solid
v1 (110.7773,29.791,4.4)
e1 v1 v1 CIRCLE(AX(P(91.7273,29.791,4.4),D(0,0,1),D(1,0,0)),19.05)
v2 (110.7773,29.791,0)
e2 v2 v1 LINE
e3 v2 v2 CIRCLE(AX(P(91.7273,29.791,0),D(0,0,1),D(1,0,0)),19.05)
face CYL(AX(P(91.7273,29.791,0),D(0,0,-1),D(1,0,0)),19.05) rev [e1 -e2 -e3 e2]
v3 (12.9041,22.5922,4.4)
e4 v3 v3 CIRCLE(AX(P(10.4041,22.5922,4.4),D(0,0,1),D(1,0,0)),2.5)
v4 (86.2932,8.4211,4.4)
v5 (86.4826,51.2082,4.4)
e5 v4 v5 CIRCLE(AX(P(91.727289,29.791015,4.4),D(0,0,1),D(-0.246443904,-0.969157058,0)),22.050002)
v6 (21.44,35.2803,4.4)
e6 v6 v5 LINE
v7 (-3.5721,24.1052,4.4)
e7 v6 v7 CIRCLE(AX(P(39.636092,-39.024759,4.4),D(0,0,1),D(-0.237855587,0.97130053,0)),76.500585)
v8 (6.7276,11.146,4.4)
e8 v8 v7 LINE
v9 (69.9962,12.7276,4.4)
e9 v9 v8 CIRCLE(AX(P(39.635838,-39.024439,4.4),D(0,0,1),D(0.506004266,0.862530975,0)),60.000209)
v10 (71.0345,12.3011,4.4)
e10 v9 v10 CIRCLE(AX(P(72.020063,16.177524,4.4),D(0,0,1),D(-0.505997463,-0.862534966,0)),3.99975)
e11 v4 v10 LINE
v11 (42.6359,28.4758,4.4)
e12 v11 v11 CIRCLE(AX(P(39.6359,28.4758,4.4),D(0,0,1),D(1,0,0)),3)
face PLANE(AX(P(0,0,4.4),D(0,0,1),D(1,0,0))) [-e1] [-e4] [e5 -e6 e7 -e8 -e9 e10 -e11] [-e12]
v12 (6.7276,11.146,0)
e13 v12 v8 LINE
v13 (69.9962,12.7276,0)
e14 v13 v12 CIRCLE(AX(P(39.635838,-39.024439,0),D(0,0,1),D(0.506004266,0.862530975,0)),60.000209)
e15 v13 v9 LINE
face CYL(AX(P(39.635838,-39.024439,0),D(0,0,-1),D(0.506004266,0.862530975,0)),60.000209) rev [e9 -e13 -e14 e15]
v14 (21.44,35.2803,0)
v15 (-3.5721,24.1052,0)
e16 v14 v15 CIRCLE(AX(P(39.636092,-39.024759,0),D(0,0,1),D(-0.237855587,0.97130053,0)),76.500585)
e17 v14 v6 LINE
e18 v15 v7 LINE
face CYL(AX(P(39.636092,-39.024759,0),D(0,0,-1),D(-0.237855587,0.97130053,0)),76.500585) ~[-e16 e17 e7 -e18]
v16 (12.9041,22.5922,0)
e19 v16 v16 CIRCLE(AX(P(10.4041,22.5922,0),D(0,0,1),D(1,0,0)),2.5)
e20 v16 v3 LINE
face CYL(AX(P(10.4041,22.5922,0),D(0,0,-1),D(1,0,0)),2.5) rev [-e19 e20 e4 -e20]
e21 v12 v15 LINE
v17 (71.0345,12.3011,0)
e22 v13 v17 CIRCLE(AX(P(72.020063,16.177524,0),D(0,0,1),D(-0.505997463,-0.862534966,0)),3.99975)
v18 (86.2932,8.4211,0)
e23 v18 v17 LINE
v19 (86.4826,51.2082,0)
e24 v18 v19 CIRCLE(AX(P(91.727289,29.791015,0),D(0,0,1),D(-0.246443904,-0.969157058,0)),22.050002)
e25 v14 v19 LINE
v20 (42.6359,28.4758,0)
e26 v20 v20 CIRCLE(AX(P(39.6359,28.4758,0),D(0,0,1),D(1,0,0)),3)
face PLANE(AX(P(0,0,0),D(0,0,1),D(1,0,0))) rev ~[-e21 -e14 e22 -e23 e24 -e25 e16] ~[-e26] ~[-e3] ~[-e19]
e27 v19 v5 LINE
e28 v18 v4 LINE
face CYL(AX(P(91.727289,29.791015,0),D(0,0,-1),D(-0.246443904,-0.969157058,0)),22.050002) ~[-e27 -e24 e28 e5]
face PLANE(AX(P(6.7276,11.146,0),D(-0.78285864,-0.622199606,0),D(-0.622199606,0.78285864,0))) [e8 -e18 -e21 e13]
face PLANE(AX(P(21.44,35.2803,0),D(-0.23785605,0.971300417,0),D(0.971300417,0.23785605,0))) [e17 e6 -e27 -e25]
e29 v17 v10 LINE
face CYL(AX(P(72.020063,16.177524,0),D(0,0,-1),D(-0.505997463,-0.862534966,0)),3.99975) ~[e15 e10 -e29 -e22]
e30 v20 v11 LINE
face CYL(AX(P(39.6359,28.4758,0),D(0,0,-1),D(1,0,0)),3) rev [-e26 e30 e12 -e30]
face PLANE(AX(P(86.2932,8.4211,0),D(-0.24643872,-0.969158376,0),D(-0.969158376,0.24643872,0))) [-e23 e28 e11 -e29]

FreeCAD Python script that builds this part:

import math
import FreeCAD as App
import Part
import Sketcher
Q = App.Units.Quantity

doc = App.newDocument("Part")
params = doc.addObject("Spreadsheet::Sheet", "Params")
for row, (alias, value) in enumerate([
    ("sketch1_diameter", "5 mm"),
    ("sketch1_diameter2", "6 mm"),
    ("sketch1_radius", "60 mm"),
    ("sketch1_radius2", "4 mm"),
    ("sketch1_diameter3", "38.1 mm"),
    ("pad1_length", "4.4 mm"),
], start=1):
    params.set(f"A{row}", alias)
    params.set(f"B{row}", "=" + value)
    params.setAlias(f"B{row}", alias)

body = doc.addObject("PartDesign::Body", "Body")

# Sketch on XY plane
sketch1 = doc.addObject("Sketcher::SketchObject", "Sketch")
body.addObject(sketch1)
sketch1.AttachmentSupport = (doc.XY_Plane, [""])
sketch1.MapMode = "FlatFace"
sketch1.addGeometry([
    Part.ArcOfCircle(Part.Circle(App.Vector(39.6, -39, 0), App.Vector(0, 0, 1), 60), math.radians(60), math.radians(123)),  # 0
    Part.ArcOfCircle(Part.Circle(App.Vector(72, 16.2, 0), App.Vector(0, 0, 1), 4), math.radians(-120.4), math.radians(-104.27)),  # 1
    Part.LineSegment(App.Vector(71, 12.3, 0), App.Vector(86.3, 8.4, 0)),  # 2
    Part.ArcOfCircle(Part.Circle(App.Vector(91.7, 29.8, 0), App.Vector(0, 0, 1), 22), math.radians(-104), math.radians(104)),  # 3
    Part.LineSegment(App.Vector(86.5, 51.2, 0), App.Vector(21.4, 35.3, 0)),  # 4
    Part.ArcOfCircle(Part.Circle(App.Vector(39.6, -39, 0), App.Vector(0, 0, 1), 76.5), math.radians(104), math.radians(124)),  # 5
    Part.LineSegment(App.Vector(-3.6, 24.1, 0), App.Vector(6.7, 11.1, 0)),  # 6
    Part.Circle(App.Vector(10.4, 22.6, 0), App.Vector(0, 0, 1), 2.5),  # 7
    Part.Circle(App.Vector(39.6, 28.5, 0), App.Vector(0, 0, 1), 3),  # 8
    Part.Circle(App.Vector(91.7, 29.8, 0), App.Vector(0, 0, 1), 19.1),  # 9
], False)
sketch1.addConstraint([
    Sketcher.Constraint("Tangent", 0, 1, 1, 1),
    Sketcher.Constraint("Tangent", 1, 2, 2, 1),
    Sketcher.Constraint("Tangent", 2, 2, 3, 1),
    Sketcher.Constraint("Tangent", 3, 2, 4, 1),
    Sketcher.Constraint("Tangent", 4, 2, 5, 1),
    Sketcher.Constraint("Coincident", 5, 2, 6, 1),
    Sketcher.Constraint("Coincident", 6, 2, 0, 2),
    Sketcher.Constraint("Coincident", 5, 3, 0, 3),
    Sketcher.Constraint("Coincident", 9, 3, 3, 3),
    Sketcher.Constraint("Vertical", 5, 3, 8, 3),
    Sketcher.Constraint("Diameter", 7, Q("5 mm")),
    Sketcher.Constraint("Diameter", 8, Q("6 mm")),
    Sketcher.Constraint("Radius", 0, Q("60 mm")),
    Sketcher.Constraint("Radius", 1, Q("4 mm")),
    Sketcher.Constraint("Diameter", 9, Q("38.1 mm")),
    Sketcher.Constraint("Radius", 5, Q("76.5 mm")),
    Sketcher.Constraint("Radius", 3, Q("22.05 mm")),
    Sketcher.Constraint("Angle", 4, Q("-166.24 deg")),
    Sketcher.Constraint("DistanceY", 0, 3, 8, 3, Q("67.5 mm")),
    Sketcher.Constraint("DistanceX", -1, 1, 4, 2, Q("21.44 mm")),
    Sketcher.Constraint("DistanceY", 1, 2, 3, 3, Q("17.49 mm")),
    Sketcher.Constraint("DistanceY", 2, 2, 1, 2, Q("3.88 mm")),
    Sketcher.Constraint("DistanceY", -1, 1, 3, 3, Q("29.791 mm")),
    Sketcher.Constraint("DistanceX", -1, 1, 7, 3, Q("10.404 mm")),
    Sketcher.Constraint("DistanceX", 5, 2, -1, 1, Q("3.572 mm")),
    Sketcher.Constraint("DistanceY", -1, 1, 6, 2, Q("11.146 mm")),
    Sketcher.Constraint("DistanceY", 7, 3, 4, 2, Q("12.688 mm")),
])
sketch1.setExpression("Constraints[10]", "Params.sketch1_diameter")
sketch1.setExpression("Constraints[11]", "Params.sketch1_diameter2")
sketch1.setExpression("Constraints[12]", "Params.sketch1_radius")
sketch1.setExpression("Constraints[13]", "Params.sketch1_radius2")
sketch1.setExpression("Constraints[14]", "Params.sketch1_diameter3")
pad1 = doc.addObject("PartDesign::Pad", "Pad")
body.addObject(pad1)
pad1.Profile = sketch1
pad1.setExpression("Length", "Params.pad1_length")

doc.recompute()
